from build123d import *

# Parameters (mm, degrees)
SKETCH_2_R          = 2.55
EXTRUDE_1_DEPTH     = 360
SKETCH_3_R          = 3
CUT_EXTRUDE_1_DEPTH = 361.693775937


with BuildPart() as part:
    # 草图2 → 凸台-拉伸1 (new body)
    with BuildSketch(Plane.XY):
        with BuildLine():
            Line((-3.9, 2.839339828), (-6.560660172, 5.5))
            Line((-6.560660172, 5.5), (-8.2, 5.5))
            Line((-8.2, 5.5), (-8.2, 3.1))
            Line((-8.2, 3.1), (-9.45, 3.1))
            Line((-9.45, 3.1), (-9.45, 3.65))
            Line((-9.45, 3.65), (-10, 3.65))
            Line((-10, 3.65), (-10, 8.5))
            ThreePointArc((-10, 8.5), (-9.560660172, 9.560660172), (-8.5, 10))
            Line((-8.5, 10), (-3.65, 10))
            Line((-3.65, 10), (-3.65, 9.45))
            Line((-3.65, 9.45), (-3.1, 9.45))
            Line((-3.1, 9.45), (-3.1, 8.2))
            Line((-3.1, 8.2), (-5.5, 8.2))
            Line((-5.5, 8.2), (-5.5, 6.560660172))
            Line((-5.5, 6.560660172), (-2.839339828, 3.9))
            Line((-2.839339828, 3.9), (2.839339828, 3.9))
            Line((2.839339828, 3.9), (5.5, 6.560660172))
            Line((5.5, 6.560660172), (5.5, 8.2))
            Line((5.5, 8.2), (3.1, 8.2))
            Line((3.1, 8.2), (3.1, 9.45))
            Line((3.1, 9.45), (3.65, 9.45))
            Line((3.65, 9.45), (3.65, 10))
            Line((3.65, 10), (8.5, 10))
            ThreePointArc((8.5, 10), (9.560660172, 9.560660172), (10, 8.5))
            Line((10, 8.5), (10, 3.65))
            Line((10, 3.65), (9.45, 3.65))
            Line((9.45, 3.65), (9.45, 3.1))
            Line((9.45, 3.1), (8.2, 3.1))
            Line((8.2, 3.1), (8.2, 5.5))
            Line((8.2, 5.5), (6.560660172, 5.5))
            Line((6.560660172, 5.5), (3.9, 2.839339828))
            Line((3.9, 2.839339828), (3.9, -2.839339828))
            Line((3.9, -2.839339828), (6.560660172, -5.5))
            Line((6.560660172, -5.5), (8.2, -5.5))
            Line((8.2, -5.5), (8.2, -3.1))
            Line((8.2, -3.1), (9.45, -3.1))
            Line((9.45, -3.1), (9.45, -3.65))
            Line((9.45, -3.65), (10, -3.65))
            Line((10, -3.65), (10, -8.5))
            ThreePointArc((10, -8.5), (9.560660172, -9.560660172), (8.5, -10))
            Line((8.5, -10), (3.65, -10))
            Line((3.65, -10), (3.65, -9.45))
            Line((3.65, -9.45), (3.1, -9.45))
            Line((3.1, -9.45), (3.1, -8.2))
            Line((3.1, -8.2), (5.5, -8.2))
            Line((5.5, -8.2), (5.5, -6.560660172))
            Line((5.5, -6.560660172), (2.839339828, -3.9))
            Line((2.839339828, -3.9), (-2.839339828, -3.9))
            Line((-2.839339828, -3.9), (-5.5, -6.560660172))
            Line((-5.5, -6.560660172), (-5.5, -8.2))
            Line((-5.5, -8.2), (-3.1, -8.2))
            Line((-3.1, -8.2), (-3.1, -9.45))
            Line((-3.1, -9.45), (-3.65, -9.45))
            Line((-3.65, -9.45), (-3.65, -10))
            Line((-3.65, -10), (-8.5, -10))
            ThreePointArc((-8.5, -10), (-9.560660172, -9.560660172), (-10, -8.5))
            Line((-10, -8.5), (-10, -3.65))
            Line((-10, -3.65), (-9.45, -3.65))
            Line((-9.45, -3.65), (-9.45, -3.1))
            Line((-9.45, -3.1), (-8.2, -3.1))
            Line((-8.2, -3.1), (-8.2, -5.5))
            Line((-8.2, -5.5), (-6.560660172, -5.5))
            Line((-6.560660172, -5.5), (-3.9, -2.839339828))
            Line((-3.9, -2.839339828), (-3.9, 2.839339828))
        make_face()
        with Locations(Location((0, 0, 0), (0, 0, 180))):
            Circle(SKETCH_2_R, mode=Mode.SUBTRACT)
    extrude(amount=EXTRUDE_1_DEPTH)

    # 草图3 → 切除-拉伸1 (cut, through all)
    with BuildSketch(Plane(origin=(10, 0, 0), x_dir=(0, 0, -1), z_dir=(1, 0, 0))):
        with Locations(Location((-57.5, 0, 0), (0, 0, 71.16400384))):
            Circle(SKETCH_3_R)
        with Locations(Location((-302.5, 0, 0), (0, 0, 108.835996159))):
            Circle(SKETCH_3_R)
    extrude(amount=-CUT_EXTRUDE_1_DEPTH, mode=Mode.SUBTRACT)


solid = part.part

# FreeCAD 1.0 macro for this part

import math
import FreeCAD as App
import Part
import Sketcher

doc = App.newDocument("Part")
body = doc.addObject("PartDesign::Body", "Body")

# Sketch on XY plane
sketch1 = body.newObject("Sketcher::SketchObject", "Sketch")
sketch1.AttachmentSupport = (doc.getObject("XY_Plane"), [""])
sketch1.MapMode = "FlatFace"
sketch1.addGeometry([
    Part.LineSegment(App.Vector(-6.56066, 5.5, 0), App.Vector(-3.9, 2.83934, 0)),  # 0
    Part.LineSegment(App.Vector(-3.9, 2.83934, 0), App.Vector(-3.9, -2.83934, 0)),  # 1
    Part.LineSegment(App.Vector(-3.9, -2.83934, 0), App.Vector(-6.56066, -5.5, 0)),  # 2
    Part.LineSegment(App.Vector(-6.56066, -5.5, 0), App.Vector(-8.2, -5.5, 0)),  # 3
    Part.LineSegment(App.Vector(-8.2, -5.5, 0), App.Vector(-8.2, -3.1, 0)),  # 4
    Part.LineSegment(App.Vector(-8.2, -3.1, 0), App.Vector(-9.45, -3.1, 0)),  # 5
    Part.LineSegment(App.Vector(-9.45, -3.1, 0), App.Vector(-9.45, -3.65, 0)),  # 6
    Part.LineSegment(App.Vector(-9.45, -3.65, 0), App.Vector(-10, -3.65, 0)),  # 7
    Part.LineSegment(App.Vector(-10, -3.65, 0), App.Vector(-10, -8.5, 0)),  # 8
    Part.ArcOfCircle(Part.Circle(App.Vector(-8.5, -8.5, 0), App.Vector(0, 0, 1), 1.5), math.radians(180), math.radians(270)),  # 9
    Part.LineSegment(App.Vector(-8.5, -10, 0), App.Vector(-3.65, -10, 0)),  # 10
    Part.LineSegment(App.Vector(-3.65, -10, 0), App.Vector(-3.65, -9.45, 0)),  # 11
    Part.LineSegment(App.Vector(-3.65, -9.45, 0), App.Vector(-3.1, -9.45, 0)),  # 12
    Part.LineSegment(App.Vector(-3.1, -9.45, 0), App.Vector(-3.1, -8.2, 0)),  # 13
    Part.LineSegment(App.Vector(-3.1, -8.2, 0), App.Vector(-5.5, -8.2, 0)),  # 14
    Part.LineSegment(App.Vector(-5.5, -8.2, 0), App.Vector(-5.5, -6.56066, 0)),  # 15
    Part.LineSegment(App.Vector(-5.5, -6.56066, 0), App.Vector(-2.83934, -3.9, 0)),  # 16
    Part.LineSegment(App.Vector(-2.83934, -3.9, 0), App.Vector(2.83934, -3.9, 0)),  # 17
    Part.LineSegment(App.Vector(2.83934, -3.9, 0), App.Vector(5.5, -6.56066, 0)),  # 18
    Part.LineSegment(App.Vector(5.5, -6.56066, 0), App.Vector(5.5, -8.2, 0)),  # 19
    Part.LineSegment(App.Vector(5.5, -8.2, 0), App.Vector(3.1, -8.2, 0)),  # 20
    Part.LineSegment(App.Vector(3.1, -8.2, 0), App.Vector(3.1, -9.45, 0)),  # 21
    Part.LineSegment(App.Vector(3.1, -9.45, 0), App.Vector(3.65, -9.45, 0)),  # 22
    Part.LineSegment(App.Vector(3.65, -9.45, 0), App.Vector(3.65, -10, 0)),  # 23
    Part.LineSegment(App.Vector(3.65, -10, 0), App.Vector(8.5, -10, 0)),  # 24
    Part.ArcOfCircle(Part.Circle(App.Vector(8.5, -8.5, 0), App.Vector(0, 0, 1), 1.5), math.radians(-90), math.radians(0)),  # 25
    Part.LineSegment(App.Vector(10, -8.5, 0), App.Vector(10, -3.65, 0)),  # 26
    Part.LineSegment(App.Vector(10, -3.65, 0), App.Vector(9.45, -3.65, 0)),  # 27
    Part.LineSegment(App.Vector(9.45, -3.65, 0), App.Vector(9.45, -3.1, 0)),  # 28
    Part.LineSegment(App.Vector(9.45, -3.1, 0), App.Vector(8.2, -3.1, 0)),  # 29
    Part.LineSegment(App.Vector(8.2, -3.1, 0), App.Vector(8.2, -5.5, 0)),  # 30
    Part.LineSegment(App.Vector(8.2, -5.5, 0), App.Vector(6.56066, -5.5, 0)),  # 31
    Part.LineSegment(App.Vector(6.56066, -5.5, 0), App.Vector(3.9, -2.83934, 0)),  # 32
    Part.LineSegment(App.Vector(3.9, -2.83934, 0), App.Vector(3.9, 2.83934, 0)),  # 33
    Part.LineSegment(App.Vector(3.9, 2.83934, 0), App.Vector(6.56066, 5.5, 0)),  # 34
    Part.LineSegment(App.Vector(6.56066, 5.5, 0), App.Vector(8.2, 5.5, 0)),  # 35
    Part.LineSegment(App.Vector(8.2, 5.5, 0), App.Vector(8.2, 3.1, 0)),  # 36
    Part.LineSegment(App.Vector(8.2, 3.1, 0), App.Vector(9.45, 3.1, 0)),  # 37
    Part.LineSegment(App.Vector(9.45, 3.1, 0), App.Vector(9.45, 3.65, 0)),  # 38
    Part.LineSegment(App.Vector(9.45, 3.65, 0), App.Vector(10, 3.65, 0)),  # 39
    Part.LineSegment(App.Vector(10, 3.65, 0), App.Vector(10, 8.5, 0)),  # 40
    Part.ArcOfCircle(Part.Circle(App.Vector(8.5, 8.5, 0), App.Vector(0, 0, 1), 1.5), math.radians(0), math.radians(90)),  # 41
    Part.LineSegment(App.Vector(8.5, 10, 0), App.Vector(3.65, 10, 0)),  # 42
    Part.LineSegment(App.Vector(3.65, 10, 0), App.Vector(3.65, 9.45, 0)),  # 43
    Part.LineSegment(App.Vector(3.65, 9.45, 0), App.Vector(3.1, 9.45, 0)),  # 44
    Part.LineSegment(App.Vector(3.1, 9.45, 0), App.Vector(3.1, 8.2, 0)),  # 45
    Part.LineSegment(App.Vector(3.1, 8.2, 0), App.Vector(5.5, 8.2, 0)),  # 46
    Part.LineSegment(App.Vector(5.5, 8.2, 0), App.Vector(5.5, 6.56066, 0)),  # 47
    Part.LineSegment(App.Vector(5.5, 6.56066, 0), App.Vector(2.83934, 3.9, 0)),  # 48
    Part.LineSegment(App.Vector(2.83934, 3.9, 0), App.Vector(-2.83934, 3.9, 0)),  # 49
    Part.LineSegment(App.Vector(-2.83934, 3.9, 0), App.Vector(-5.5, 6.56066, 0)),  # 50
    Part.LineSegment(App.Vector(-5.5, 6.56066, 0), App.Vector(-5.5, 8.2, 0)),  # 51
    Part.LineSegment(App.Vector(-5.5, 8.2, 0), App.Vector(-3.1, 8.2, 0)),  # 52
    Part.LineSegment(App.Vector(-3.1, 8.2, 0), App.Vector(-3.1, 9.45, 0)),  # 53
    Part.LineSegment(App.Vector(-3.1, 9.45, 0), App.Vector(-3.65, 9.45, 0)),  # 54
    Part.LineSegment(App.Vector(-3.65, 9.45, 0), App.Vector(-3.65, 10, 0)),  # 55
    Part.LineSegment(App.Vector(-3.65, 10, 0), App.Vector(-8.5, 10, 0)),  # 56
    Part.ArcOfCircle(Part.Circle(App.Vector(-8.5, 8.5, 0), App.Vector(0, 0, 1), 1.5), math.radians(90), math.radians(180)),  # 57
    Part.LineSegment(App.Vector(-10, 8.5, 0), App.Vector(-10, 3.65, 0)),  # 58
    Part.LineSegment(App.Vector(-10, 3.65, 0), App.Vector(-9.45, 3.65, 0)),  # 59
    Part.LineSegment(App.Vector(-9.45, 3.65, 0), App.Vector(-9.45, 3.1, 0)),  # 60
    Part.LineSegment(App.Vector(-9.45, 3.1, 0), App.Vector(-8.2, 3.1, 0)),  # 61
    Part.LineSegment(App.Vector(-8.2, 3.1, 0), App.Vector(-8.2, 5.5, 0)),  # 62
    Part.LineSegment(App.Vector(-8.2, 5.5, 0), App.Vector(-6.56066, 5.5, 0)),  # 63
    Part.Circle(App.Vector(0, 0, 0), App.Vector(0, 0, 1), 2.55),  # 64
], False)
sketch1.addConstraint([
    Sketcher.Constraint("Coincident", 0, 2, 1, 1),
    Sketcher.Constraint("Coincident", 1, 2, 2, 1),
    Sketcher.Constraint("Coincident", 2, 2, 3, 1),
    Sketcher.Constraint("Coincident", 3, 2, 4, 1),
    Sketcher.Constraint("Coincident", 4, 2, 5, 1),
    Sketcher.Constraint("Coincident", 5, 2, 6, 1),
    Sketcher.Constraint("Coincident", 6, 2, 7, 1),
    Sketcher.Constraint("Coincident", 7, 2, 8, 1),
    Sketcher.Constraint("Tangent", 8, 2, 9, 1),
    Sketcher.Constraint("Tangent", 9, 2, 10, 1),
    Sketcher.Constraint("Coincident", 10, 2, 11, 1),
    Sketcher.Constraint("Coincident", 11, 2, 12, 1),
    Sketcher.Constraint("Coincident", 12, 2, 13, 1),
    Sketcher.Constraint("Coincident", 13, 2, 14, 1),
    Sketcher.Constraint("Coincident", 14, 2, 15, 1),
    Sketcher.Constraint("Coincident", 15, 2, 16, 1),
    Sketcher.Constraint("Coincident", 16, 2, 17, 1),
    Sketcher.Constraint("Coincident", 17, 2, 18, 1),
    Sketcher.Constraint("Coincident", 18, 2, 19, 1),
    Sketcher.Constraint("Coincident", 19, 2, 20, 1),
    Sketcher.Constraint("Coincident", 20, 2, 21, 1),
    Sketcher.Constraint("Coincident", 21, 2, 22, 1),
    Sketcher.Constraint("Coincident", 22, 2, 23, 1),
    Sketcher.Constraint("Coincident", 23, 2, 24, 1),
    Sketcher.Constraint("Tangent", 24, 2, 25, 1),
    Sketcher.Constraint("Tangent", 25, 2, 26, 1),
    Sketcher.Constraint("Coincident", 26, 2, 27, 1),
    Sketcher.Constraint("Coincident", 27, 2, 28, 1),
    Sketcher.Constraint("Coincident", 28, 2, 29, 1),
    Sketcher.Constraint("Coincident", 29, 2, 30, 1),
    Sketcher.Constraint("Coincident", 30, 2, 31, 1),
    Sketcher.Constraint("Coincident", 31, 2, 32, 1),
    Sketcher.Constraint("Coincident", 32, 2, 33, 1),
    Sketcher.Constraint("Coincident", 33, 2, 34, 1),
    Sketcher.Constraint("Coincident", 34, 2, 35, 1),
    Sketcher.Constraint("Coincident", 35, 2, 36, 1),
    Sketcher.Constraint("Coincident", 36, 2, 37, 1),
    Sketcher.Constraint("Coincident", 37, 2, 38, 1),
    Sketcher.Constraint("Coincident", 38, 2, 39, 1),
    Sketcher.Constraint("Coincident", 39, 2, 40, 1),
    Sketcher.Constraint("Tangent", 40, 2, 41, 1),
    Sketcher.Constraint("Tangent", 41, 2, 42, 1),
    Sketcher.Constraint("Coincident", 42, 2, 43, 1),
    Sketcher.Constraint("Coincident", 43, 2, 44, 1),
    Sketcher.Constraint("Coincident", 44, 2, 45, 1),
    Sketcher.Constraint("Coincident", 45, 2, 46, 1),
    Sketcher.Constraint("Coincident", 46, 2, 47, 1),
    Sketcher.Constraint("Coincident", 47, 2, 48, 1),
    Sketcher.Constraint("Coincident", 48, 2, 49, 1),
    Sketcher.Constraint("Coincident", 49, 2, 50, 1),
    Sketcher.Constraint("Coincident", 50, 2, 51, 1),
    Sketcher.Constraint("Coincident", 51, 2, 52, 1),
    Sketcher.Constraint("Coincident", 52, 2, 53, 1),
    Sketcher.Constraint("Coincident", 53, 2, 54, 1),
    Sketcher.Constraint("Coincident", 54, 2, 55, 1),
    Sketcher.Constraint("Coincident", 55, 2, 56, 1),
    Sketcher.Constraint("Tangent", 56, 2, 57, 1),
    Sketcher.Constraint("Tangent", 57, 2, 58, 1),
    Sketcher.Constraint("Coincident", 58, 2, 59, 1),
    Sketcher.Constraint("Coincident", 59, 2, 60, 1),
    Sketcher.Constraint("Coincident", 60, 2, 61, 1),
    Sketcher.Constraint("Coincident", 61, 2, 62, 1),
    Sketcher.Constraint("Coincident", 62, 2, 63, 1),
    Sketcher.Constraint("Coincident", 63, 2, 0, 1),
    Sketcher.Constraint("Vertical", 1),
    Sketcher.Constraint("Horizontal", 3),
    Sketcher.Constraint("Vertical", 4),
    Sketcher.Constraint("Horizontal", 5),
    Sketcher.Constraint("Vertical", 6),
    Sketcher.Constraint("Horizontal", 7),
    Sketcher.Constraint("Vertical", 8),
    Sketcher.Constraint("Horizontal", 10),
    Sketcher.Constraint("Vertical", 11),
    Sketcher.Constraint("Horizontal", 12),
    Sketcher.Constraint("Vertical", 13),
    Sketcher.Constraint("Horizontal", 14),
    Sketcher.Constraint("Vertical", 15),
    Sketcher.Constraint("Horizontal", 17),
    Sketcher.Constraint("Vertical", 19),
    Sketcher.Constraint("Horizontal", 20),
    Sketcher.Constraint("Vertical", 21),
    Sketcher.Constraint("Horizontal", 22),
    Sketcher.Constraint("Vertical", 23),
    Sketcher.Constraint("Horizontal", 24),
    Sketcher.Constraint("Vertical", 26),
    Sketcher.Constraint("Horizontal", 27),
    Sketcher.Constraint("Vertical", 28),
    Sketcher.Constraint("Horizontal", 29),
    Sketcher.Constraint("Vertical", 30),
    Sketcher.Constraint("Horizontal", 31),
    Sketcher.Constraint("Vertical", 33),
    Sketcher.Constraint("Horizontal", 35),
    Sketcher.Constraint("Vertical", 36),
    Sketcher.Constraint("Horizontal", 37),
    Sketcher.Constraint("Vertical", 38),
    Sketcher.Constraint("Horizontal", 39),
    Sketcher.Constraint("Vertical", 40),
    Sketcher.Constraint("Horizontal", 42),
    Sketcher.Constraint("Vertical", 43),
    Sketcher.Constraint("Horizontal", 44),
    Sketcher.Constraint("Vertical", 45),
    Sketcher.Constraint("Horizontal", 46),
    Sketcher.Constraint("Vertical", 47),
    Sketcher.Constraint("Horizontal", 49),
    Sketcher.Constraint("Vertical", 51),
    Sketcher.Constraint("Horizontal", 52),
    Sketcher.Constraint("Vertical", 53),
    Sketcher.Constraint("Horizontal", 54),
    Sketcher.Constraint("Vertical", 55),
    Sketcher.Constraint("Horizontal", 56),
    Sketcher.Constraint("Vertical", 58),
    Sketcher.Constraint("Horizontal", 59),
    Sketcher.Constraint("Vertical", 60),
    Sketcher.Constraint("Horizontal", 61),
    Sketcher.Constraint("Vertical", 62),
    Sketcher.Constraint("Horizontal", 63),
    Sketcher.Constraint("Coincident", 64, 3, -1, 1),
    Sketcher.Constraint("Equal", 9, 25),
    Sketcher.Constraint("Equal", 25, 41),
    Sketcher.Constraint("Equal", 41, 57),
    Sketcher.Constraint("Symmetric", 9, 3, 41, 3, -1, 1),
    Sketcher.Constraint("Symmetric", 25, 3, 57, 3, -1, 1),
    Sketcher.Constraint("Symmetric", 0, 2, 32, 2, -1, 1),
    Sketcher.Constraint("Symmetric", 2, 2, 34, 2, -1, 1),
    Sketcher.Constraint("Symmetric", 4, 2, 36, 2, -1, 1),
    Sketcher.Constraint("Symmetric", 6, 2, 38, 2, -1, 1),
    Sketcher.Constraint("Symmetric", 11, 2, 43, 2, -1, 1),
    Sketcher.Constraint("Symmetric", 13, 2, 45, 2, -1, 1),
    Sketcher.Constraint("Symmetric", 15, 2, 47, 2, -1, 1),
    Sketcher.Constraint("Symmetric", 16, 2, 48, 2, -1, 1),
    Sketcher.Constraint("Symmetric", 18, 2, 50, 2, -1, 1),
    Sketcher.Constraint("Symmetric", 20, 2, 52, 2, -1, 1),
    Sketcher.Constraint("Symmetric", 22, 2, 54, 2, -1, 1),
    Sketcher.Constraint("Symmetric", 27, 2, 59, 2, -1, 1),
    Sketcher.Constraint("Symmetric", 29, 2, 61, 2, -1, 1),
    Sketcher.Constraint("Symmetric", 31, 2, 63, 2, -1, 1),
    Sketcher.Constraint("Symmetric", 9, 3, 25, 3, -2),
    Sketcher.Constraint("Symmetric", 15, 2, 18, 2, -2),
    Sketcher.Constraint("Symmetric", 13, 2, 20, 2, -2),
    Sketcher.Constraint("Symmetric", 11, 2, 22, 2, -2),
    Sketcher.Constraint("Symmetric", 6, 2, 27, 2, -2),
    Sketcher.Constraint("Symmetric", 4, 2, 29, 2, -2),
    Sketcher.Constraint("Symmetric", 2, 2, 31, 2, -2),
    Sketcher.Constraint("Perpendicular", 0, 2),
    Sketcher.Constraint("Parallel", 2, 16),
    Sketcher.Constraint("Perpendicular", 16, 18),
    Sketcher.Constraint("Perpendicular", 32, 34),
    Sketcher.Constraint("Perpendicular", 48, 50),
    Sketcher.Constraint("Horizontal", 1, 2, 32, 2),
    Sketcher.Constraint("Equal", 7, 12),
    Sketcher.Constraint("Equal", 49, 1),
    Sketcher.Constraint("Equal", 52, 4),
    Sketcher.Constraint("Equal", 59, 6),
    Sketcher.Constraint("Equal", 56, 8),
    Sketcher.Constraint("Equal", 6, 11),
    Sketcher.Constraint("Equal", 61, 13),
    Sketcher.Constraint("Equal", 63, 15),
    Sketcher.Constraint("Equal", 2, 16),
    Sketcher.Constraint("Diameter", 64, 5.1),
    Sketcher.Constraint("Radius", 9, 1.5),
    Sketcher.Constraint("DistanceX", 14, 2, 14, 1, 2.4),
    Sketcher.Constraint("DistanceX", 7, 2, -1, 1, 10.0),
    Sketcher.Constraint("DistanceX", 5, 2, 5, 1, 1.25),
    Sketcher.Constraint("DistanceX", 7, 2, 7, 1, 0.55),
    Sketcher.Constraint("DistanceX", 10, 1, 10, 2, 4.85),
    Sketcher.Constraint("DistanceX", 0, 2, -1, 1, 3.9),
    Sketcher.Constraint("DistanceX", 3, 2, 3, 1, 1.63934),
])
pad1 = body.newObject("PartDesign::Pad", "Pad")
pad1.Profile = sketch1
pad1.Length = 360

# Sketch on YZ plane
sketch2 = body.newObject("Sketcher::SketchObject", "Sketch001")
sketch2.AttachmentSupport = (doc.getObject("YZ_Plane"), [""])
sketch2.MapMode = "FlatFace"
sketch2.AttachmentOffset = App.Placement(App.Vector(0, 0, 10), App.Rotation())
sketch2.addGeometry([
    Part.Circle(App.Vector(0, 57.5, 0), App.Vector(0, 0, 1), 3),
    Part.Circle(App.Vector(0, 302.5, 0), App.Vector(0, 0, 1), 3),
], False)
sketch2.addConstraint([
    Sketcher.Constraint("Equal", 0, 1),
    Sketcher.Constraint("PointOnObject", 0, 3, -2),
    Sketcher.Constraint("PointOnObject", 1, 3, -2),
    Sketcher.Constraint("Diameter", 0, 6.0),
    Sketcher.Constraint("DistanceY", 0, 3, 1, 3, 245.0),
    Sketcher.Constraint("DistanceY", -1, 1, 0, 3, 57.5),
])
pocket1 = body.newObject("PartDesign::Pocket", "Pocket")
pocket1.Profile = sketch2
pocket1.Type = "ThroughAll"

doc.recompute()
